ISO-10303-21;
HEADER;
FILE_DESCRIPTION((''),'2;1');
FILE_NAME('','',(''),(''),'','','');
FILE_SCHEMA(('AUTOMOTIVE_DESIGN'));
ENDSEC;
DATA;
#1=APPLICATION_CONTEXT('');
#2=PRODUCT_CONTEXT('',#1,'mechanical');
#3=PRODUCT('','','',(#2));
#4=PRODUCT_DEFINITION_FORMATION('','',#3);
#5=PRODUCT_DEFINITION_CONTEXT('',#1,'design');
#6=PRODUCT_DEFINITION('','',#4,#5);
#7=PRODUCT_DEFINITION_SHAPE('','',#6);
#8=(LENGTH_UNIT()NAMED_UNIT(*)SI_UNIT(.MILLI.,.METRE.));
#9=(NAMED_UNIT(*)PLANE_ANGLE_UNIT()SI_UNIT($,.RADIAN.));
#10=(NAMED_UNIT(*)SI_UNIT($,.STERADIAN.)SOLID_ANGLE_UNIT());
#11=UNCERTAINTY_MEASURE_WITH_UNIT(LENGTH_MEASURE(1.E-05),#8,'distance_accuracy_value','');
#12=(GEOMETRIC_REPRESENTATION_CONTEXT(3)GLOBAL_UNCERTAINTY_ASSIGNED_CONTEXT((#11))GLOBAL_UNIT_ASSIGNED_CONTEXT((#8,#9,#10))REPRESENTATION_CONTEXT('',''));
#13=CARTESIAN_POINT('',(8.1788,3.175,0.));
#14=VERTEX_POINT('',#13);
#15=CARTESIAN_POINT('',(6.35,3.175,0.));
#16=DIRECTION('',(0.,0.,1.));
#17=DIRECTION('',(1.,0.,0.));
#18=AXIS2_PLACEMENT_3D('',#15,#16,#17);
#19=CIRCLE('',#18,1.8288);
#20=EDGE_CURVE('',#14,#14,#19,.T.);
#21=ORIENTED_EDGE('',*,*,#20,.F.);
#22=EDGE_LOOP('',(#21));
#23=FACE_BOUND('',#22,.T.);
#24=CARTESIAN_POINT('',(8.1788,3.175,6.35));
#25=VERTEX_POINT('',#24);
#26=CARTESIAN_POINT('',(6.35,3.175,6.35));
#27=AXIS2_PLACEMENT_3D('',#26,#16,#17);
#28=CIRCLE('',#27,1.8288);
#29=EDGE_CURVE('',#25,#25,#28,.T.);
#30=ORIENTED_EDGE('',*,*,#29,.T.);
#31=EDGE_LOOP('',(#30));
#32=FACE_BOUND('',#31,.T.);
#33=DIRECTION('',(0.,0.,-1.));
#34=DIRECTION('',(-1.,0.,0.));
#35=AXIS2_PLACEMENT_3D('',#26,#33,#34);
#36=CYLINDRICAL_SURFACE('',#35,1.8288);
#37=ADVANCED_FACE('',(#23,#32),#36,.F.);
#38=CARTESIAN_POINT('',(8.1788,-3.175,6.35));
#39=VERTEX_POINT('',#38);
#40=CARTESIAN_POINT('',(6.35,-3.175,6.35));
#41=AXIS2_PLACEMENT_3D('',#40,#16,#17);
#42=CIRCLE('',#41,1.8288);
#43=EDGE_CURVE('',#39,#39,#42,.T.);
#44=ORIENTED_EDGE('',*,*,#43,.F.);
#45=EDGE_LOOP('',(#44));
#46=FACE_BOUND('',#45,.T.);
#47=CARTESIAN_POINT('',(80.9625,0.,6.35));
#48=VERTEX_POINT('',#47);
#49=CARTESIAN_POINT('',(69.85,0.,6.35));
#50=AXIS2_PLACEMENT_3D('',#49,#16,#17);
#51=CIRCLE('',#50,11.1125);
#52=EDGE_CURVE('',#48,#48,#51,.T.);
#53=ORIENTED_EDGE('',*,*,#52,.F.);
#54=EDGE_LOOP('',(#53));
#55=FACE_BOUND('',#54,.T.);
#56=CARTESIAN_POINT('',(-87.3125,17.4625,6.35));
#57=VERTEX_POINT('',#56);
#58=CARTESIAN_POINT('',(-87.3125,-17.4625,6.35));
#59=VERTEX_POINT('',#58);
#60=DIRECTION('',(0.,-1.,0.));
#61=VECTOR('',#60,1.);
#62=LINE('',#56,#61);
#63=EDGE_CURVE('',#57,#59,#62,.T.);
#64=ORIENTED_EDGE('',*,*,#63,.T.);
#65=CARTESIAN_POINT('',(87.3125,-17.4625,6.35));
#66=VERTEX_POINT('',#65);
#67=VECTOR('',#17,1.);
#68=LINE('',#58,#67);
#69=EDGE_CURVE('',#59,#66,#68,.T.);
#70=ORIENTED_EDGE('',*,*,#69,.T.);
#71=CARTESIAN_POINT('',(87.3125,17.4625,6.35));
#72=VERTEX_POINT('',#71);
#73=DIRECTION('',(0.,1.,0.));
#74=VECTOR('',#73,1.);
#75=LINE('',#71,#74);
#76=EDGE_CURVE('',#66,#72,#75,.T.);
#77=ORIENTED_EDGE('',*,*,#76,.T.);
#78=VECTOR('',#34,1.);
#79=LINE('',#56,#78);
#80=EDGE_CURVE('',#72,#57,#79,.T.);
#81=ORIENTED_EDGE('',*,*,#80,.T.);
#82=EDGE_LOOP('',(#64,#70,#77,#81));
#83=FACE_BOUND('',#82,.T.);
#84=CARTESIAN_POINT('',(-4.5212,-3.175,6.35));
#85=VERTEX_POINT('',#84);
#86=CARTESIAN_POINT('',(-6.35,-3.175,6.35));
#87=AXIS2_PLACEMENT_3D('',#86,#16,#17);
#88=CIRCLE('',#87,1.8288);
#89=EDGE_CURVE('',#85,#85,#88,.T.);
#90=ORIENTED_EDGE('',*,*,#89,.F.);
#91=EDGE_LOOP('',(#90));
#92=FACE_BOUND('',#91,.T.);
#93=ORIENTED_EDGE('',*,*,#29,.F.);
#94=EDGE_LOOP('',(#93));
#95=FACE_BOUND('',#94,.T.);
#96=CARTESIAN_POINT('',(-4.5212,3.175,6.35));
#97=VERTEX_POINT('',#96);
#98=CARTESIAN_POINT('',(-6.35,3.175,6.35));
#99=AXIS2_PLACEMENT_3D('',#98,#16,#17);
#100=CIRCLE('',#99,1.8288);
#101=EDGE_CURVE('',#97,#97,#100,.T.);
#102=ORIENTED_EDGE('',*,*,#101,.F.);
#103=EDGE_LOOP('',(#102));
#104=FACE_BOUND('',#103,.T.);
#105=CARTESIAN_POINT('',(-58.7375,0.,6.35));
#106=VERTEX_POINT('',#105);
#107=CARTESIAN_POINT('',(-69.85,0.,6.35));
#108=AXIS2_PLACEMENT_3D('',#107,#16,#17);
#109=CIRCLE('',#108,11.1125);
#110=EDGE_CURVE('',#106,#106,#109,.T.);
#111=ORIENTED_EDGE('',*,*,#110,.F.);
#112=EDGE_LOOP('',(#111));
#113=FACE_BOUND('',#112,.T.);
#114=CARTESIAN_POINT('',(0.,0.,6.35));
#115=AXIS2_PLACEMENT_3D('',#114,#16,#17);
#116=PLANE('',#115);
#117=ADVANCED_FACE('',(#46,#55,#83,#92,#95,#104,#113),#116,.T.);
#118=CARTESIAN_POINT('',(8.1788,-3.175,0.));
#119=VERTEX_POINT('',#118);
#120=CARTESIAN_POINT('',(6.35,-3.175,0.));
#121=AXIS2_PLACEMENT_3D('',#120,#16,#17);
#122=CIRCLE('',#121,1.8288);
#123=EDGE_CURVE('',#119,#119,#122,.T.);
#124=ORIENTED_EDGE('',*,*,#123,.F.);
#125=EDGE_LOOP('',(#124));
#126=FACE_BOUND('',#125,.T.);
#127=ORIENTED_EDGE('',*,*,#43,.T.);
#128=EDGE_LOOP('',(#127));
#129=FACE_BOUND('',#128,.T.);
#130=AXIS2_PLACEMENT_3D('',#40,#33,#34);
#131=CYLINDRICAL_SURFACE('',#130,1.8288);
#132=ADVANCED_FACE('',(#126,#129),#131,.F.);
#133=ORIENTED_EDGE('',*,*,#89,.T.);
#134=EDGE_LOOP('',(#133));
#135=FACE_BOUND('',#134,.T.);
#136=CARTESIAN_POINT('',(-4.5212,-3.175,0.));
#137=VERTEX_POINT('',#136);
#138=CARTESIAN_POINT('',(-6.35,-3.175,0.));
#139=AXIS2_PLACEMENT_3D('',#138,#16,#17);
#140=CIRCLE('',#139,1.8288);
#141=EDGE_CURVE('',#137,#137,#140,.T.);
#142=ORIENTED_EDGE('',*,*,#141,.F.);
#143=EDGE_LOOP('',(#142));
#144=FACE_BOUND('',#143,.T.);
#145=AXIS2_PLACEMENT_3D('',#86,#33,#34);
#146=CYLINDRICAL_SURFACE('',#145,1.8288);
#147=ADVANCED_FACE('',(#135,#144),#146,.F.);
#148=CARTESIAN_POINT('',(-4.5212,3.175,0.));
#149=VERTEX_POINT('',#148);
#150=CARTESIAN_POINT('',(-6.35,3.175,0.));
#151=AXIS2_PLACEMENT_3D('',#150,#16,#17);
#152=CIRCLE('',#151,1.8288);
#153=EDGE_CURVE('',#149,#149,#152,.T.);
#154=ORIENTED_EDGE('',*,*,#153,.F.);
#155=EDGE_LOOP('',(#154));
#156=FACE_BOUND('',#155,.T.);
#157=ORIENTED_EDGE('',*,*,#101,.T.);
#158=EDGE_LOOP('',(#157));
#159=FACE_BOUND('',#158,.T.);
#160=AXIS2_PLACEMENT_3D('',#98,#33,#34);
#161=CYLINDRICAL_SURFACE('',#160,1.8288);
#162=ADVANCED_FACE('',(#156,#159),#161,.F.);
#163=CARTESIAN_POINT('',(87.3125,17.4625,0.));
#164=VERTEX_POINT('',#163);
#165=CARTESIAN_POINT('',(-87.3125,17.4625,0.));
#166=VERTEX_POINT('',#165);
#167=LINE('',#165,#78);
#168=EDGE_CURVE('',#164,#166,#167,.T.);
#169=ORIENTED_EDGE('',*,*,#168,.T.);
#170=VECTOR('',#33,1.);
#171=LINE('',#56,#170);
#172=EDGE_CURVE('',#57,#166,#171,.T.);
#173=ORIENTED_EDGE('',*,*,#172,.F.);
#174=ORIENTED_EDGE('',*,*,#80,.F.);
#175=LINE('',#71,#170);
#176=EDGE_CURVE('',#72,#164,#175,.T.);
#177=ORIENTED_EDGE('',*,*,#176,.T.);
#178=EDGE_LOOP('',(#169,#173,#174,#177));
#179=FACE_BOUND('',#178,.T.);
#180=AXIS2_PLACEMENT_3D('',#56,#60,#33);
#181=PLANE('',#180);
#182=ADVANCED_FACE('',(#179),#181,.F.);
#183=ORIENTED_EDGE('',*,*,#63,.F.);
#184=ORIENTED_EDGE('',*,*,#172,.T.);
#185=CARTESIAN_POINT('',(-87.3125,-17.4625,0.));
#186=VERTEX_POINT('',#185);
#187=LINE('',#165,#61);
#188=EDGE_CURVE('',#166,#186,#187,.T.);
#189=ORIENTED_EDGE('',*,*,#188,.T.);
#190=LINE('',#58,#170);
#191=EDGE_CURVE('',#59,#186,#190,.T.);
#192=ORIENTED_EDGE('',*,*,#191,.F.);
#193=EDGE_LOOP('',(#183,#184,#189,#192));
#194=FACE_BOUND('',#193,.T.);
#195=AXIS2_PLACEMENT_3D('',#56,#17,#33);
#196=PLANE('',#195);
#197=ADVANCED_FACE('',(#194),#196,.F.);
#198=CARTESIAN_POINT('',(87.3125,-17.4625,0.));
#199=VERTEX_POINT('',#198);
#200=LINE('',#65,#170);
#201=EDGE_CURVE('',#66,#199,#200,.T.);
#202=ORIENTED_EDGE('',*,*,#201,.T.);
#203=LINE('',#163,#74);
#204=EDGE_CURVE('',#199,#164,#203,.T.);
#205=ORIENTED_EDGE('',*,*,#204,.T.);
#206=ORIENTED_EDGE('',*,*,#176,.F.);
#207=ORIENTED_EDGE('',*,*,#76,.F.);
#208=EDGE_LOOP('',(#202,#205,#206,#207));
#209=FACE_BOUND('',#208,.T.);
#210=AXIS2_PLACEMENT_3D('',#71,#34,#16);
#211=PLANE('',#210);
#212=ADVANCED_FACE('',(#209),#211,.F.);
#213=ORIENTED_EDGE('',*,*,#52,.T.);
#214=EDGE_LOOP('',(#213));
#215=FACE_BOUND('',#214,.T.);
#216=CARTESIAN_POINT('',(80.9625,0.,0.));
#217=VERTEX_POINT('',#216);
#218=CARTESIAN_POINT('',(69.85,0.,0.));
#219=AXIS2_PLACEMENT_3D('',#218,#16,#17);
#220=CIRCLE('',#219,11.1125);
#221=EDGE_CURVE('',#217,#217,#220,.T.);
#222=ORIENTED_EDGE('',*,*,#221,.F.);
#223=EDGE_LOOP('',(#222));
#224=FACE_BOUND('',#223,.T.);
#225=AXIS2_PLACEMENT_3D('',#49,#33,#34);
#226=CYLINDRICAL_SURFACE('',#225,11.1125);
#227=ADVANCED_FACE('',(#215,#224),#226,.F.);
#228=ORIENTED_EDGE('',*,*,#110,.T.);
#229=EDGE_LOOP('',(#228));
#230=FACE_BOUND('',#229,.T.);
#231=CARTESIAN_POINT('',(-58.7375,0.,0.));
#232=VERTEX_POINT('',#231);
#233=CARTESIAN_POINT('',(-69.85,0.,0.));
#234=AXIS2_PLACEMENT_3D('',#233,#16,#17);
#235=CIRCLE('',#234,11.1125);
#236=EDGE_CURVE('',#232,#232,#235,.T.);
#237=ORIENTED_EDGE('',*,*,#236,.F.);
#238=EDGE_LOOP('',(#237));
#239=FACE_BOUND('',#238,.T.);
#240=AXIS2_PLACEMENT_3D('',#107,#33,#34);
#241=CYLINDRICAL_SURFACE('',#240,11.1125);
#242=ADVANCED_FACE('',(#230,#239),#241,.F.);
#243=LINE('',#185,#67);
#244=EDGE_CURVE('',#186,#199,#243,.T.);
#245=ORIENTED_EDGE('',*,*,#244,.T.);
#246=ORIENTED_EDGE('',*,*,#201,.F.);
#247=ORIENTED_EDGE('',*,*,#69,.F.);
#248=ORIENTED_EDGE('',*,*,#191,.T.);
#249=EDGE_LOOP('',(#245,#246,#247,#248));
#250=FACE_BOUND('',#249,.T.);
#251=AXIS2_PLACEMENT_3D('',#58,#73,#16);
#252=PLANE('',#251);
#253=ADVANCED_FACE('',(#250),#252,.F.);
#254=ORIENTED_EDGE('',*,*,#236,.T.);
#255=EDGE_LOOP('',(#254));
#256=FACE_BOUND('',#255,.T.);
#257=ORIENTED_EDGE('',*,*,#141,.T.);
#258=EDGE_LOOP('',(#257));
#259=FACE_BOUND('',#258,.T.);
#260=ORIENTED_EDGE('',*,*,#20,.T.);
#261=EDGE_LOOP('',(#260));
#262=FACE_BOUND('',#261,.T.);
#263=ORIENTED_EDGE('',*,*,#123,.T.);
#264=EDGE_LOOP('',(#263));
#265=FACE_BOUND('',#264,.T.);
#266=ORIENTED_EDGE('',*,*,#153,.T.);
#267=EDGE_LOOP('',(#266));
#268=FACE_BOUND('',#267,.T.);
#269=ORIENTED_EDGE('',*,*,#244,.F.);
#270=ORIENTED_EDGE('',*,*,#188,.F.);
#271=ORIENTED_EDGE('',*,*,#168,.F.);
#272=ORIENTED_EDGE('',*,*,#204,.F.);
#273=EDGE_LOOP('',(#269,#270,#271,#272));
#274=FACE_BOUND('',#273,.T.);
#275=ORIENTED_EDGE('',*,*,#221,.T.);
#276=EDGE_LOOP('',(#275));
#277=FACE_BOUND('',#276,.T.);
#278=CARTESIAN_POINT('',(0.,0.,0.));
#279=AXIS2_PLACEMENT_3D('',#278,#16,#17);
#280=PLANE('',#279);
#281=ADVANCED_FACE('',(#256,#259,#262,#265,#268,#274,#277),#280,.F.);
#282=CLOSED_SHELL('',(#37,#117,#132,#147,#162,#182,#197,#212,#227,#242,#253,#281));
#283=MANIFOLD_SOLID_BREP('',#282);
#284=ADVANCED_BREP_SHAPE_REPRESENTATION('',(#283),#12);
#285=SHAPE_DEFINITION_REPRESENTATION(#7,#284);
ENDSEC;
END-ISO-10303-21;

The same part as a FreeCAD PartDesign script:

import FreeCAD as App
import Part
import Sketcher
Q = App.Units.Quantity

doc = App.newDocument("Part")
body = doc.addObject("PartDesign::Body", "Body")

# Sketch on XY plane
sketch1 = body.newObject("Sketcher::SketchObject", "Sketch")
sketch1.AttachmentSupport = (doc.getObject("XY_Plane"), [""])
sketch1.MapMode = "FlatFace"
sketch1.addGeometry(Part.LineSegment(App.Vector(-87.3125, 17.4625, 0), App.Vector(-87.3125, -17.4625, 0)), False)
sketch1.addGeometry(Part.LineSegment(App.Vector(-87.3125, -17.4625, 0), App.Vector(87.3125, -17.4625, 0)), False)
sketch1.addGeometry(Part.LineSegment(App.Vector(87.3125, -17.4625, 0), App.Vector(87.3125, 17.4625, 0)), False)
sketch1.addGeometry(Part.LineSegment(App.Vector(87.3125, 17.4625, 0), App.Vector(-87.3125, 17.4625, 0)), False)
sketch1.addGeometry(Part.Circle(App.Vector(-6.35, -3.175, 0), App.Vector(0, 0, 1), 1.8288), False)
sketch1.addGeometry(Part.Circle(App.Vector(6.35, -3.175, 0), App.Vector(0, 0, 1), 1.8288), False)
sketch1.addGeometry(Part.Circle(App.Vector(-69.85, 0, 0), App.Vector(0, 0, 1), 11.1125), False)
sketch1.addGeometry(Part.Circle(App.Vector(-6.35, 3.175, 0), App.Vector(0, 0, 1), 1.8288), False)
sketch1.addGeometry(Part.Circle(App.Vector(6.35, 3.175, 0), App.Vector(0, 0, 1), 1.8288), False)
sketch1.addGeometry(Part.Circle(App.Vector(69.85, 0, 0), App.Vector(0, 0, 1), 11.1125), False)
sketch1.addConstraint(Sketcher.Constraint("Coincident", 0, 2, 1, 1))
sketch1.addConstraint(Sketcher.Constraint("Coincident", 1, 2, 2, 1))
sketch1.addConstraint(Sketcher.Constraint("Coincident", 2, 2, 3, 1))
sketch1.addConstraint(Sketcher.Constraint("Coincident", 3, 2, 0, 1))
sketch1.addConstraint(Sketcher.Constraint("Vertical", 0))
sketch1.addConstraint(Sketcher.Constraint("Horizontal", 1))
sketch1.addConstraint(Sketcher.Constraint("Vertical", 2))
sketch1.addConstraint(Sketcher.Constraint("Horizontal", 3))
sketch1.addConstraint(Sketcher.Constraint("Equal", 4, 5))
sketch1.addConstraint(Sketcher.Constraint("Equal", 5, 7))
sketch1.addConstraint(Sketcher.Constraint("Equal", 7, 8))
sketch1.addConstraint(Sketcher.Constraint("Equal", 6, 9))
sketch1.addConstraint(Sketcher.Constraint("Symmetric", 5, 3, 7, 3, -1, 1))
sketch1.addConstraint(Sketcher.Constraint("Symmetric", 4, 3, 8, 3, -1, 1))
sketch1.addConstraint(Sketcher.Constraint("Symmetric", 6, 3, 9, 3, -1, 1))
sketch1.addConstraint(Sketcher.Constraint("Symmetric", 0, 2, 2, 2, -1, 1))
sketch1.addConstraint(Sketcher.Constraint("Symmetric", 4, 3, 5, 3, -2))
sketch1.addConstraint(Sketcher.Constraint("PointOnObject", 6, 3, -1))
sketch1.addConstraint(Sketcher.Constraint("Diameter", 4, Q("0.144 in")))
sketch1.addConstraint(Sketcher.Constraint("Diameter", 6, Q("0.875 in")))
sketch1.addConstraint(Sketcher.Constraint("DistanceX", 6, 3, 5, 3, Q("3 in")))
sketch1.addConstraint(Sketcher.Constraint("DistanceX", 4, 3, 5, 3, Q("0.5 in")))
sketch1.addConstraint(Sketcher.Constraint("DistanceX", 1, 1, 1, 2, Q("6.875 in")))
sketch1.addConstraint(Sketcher.Constraint("DistanceY", 0, 2, 0, 1, Q("1.375 in")))
sketch1.addConstraint(Sketcher.Constraint("DistanceY", 4, 3, 7, 3, Q("0.25 in")))
pad1 = body.newObject("PartDesign::Pad", "Pad")
pad1.Profile = sketch1
pad1.Length = Q("0.25 in")

doc.recompute()
